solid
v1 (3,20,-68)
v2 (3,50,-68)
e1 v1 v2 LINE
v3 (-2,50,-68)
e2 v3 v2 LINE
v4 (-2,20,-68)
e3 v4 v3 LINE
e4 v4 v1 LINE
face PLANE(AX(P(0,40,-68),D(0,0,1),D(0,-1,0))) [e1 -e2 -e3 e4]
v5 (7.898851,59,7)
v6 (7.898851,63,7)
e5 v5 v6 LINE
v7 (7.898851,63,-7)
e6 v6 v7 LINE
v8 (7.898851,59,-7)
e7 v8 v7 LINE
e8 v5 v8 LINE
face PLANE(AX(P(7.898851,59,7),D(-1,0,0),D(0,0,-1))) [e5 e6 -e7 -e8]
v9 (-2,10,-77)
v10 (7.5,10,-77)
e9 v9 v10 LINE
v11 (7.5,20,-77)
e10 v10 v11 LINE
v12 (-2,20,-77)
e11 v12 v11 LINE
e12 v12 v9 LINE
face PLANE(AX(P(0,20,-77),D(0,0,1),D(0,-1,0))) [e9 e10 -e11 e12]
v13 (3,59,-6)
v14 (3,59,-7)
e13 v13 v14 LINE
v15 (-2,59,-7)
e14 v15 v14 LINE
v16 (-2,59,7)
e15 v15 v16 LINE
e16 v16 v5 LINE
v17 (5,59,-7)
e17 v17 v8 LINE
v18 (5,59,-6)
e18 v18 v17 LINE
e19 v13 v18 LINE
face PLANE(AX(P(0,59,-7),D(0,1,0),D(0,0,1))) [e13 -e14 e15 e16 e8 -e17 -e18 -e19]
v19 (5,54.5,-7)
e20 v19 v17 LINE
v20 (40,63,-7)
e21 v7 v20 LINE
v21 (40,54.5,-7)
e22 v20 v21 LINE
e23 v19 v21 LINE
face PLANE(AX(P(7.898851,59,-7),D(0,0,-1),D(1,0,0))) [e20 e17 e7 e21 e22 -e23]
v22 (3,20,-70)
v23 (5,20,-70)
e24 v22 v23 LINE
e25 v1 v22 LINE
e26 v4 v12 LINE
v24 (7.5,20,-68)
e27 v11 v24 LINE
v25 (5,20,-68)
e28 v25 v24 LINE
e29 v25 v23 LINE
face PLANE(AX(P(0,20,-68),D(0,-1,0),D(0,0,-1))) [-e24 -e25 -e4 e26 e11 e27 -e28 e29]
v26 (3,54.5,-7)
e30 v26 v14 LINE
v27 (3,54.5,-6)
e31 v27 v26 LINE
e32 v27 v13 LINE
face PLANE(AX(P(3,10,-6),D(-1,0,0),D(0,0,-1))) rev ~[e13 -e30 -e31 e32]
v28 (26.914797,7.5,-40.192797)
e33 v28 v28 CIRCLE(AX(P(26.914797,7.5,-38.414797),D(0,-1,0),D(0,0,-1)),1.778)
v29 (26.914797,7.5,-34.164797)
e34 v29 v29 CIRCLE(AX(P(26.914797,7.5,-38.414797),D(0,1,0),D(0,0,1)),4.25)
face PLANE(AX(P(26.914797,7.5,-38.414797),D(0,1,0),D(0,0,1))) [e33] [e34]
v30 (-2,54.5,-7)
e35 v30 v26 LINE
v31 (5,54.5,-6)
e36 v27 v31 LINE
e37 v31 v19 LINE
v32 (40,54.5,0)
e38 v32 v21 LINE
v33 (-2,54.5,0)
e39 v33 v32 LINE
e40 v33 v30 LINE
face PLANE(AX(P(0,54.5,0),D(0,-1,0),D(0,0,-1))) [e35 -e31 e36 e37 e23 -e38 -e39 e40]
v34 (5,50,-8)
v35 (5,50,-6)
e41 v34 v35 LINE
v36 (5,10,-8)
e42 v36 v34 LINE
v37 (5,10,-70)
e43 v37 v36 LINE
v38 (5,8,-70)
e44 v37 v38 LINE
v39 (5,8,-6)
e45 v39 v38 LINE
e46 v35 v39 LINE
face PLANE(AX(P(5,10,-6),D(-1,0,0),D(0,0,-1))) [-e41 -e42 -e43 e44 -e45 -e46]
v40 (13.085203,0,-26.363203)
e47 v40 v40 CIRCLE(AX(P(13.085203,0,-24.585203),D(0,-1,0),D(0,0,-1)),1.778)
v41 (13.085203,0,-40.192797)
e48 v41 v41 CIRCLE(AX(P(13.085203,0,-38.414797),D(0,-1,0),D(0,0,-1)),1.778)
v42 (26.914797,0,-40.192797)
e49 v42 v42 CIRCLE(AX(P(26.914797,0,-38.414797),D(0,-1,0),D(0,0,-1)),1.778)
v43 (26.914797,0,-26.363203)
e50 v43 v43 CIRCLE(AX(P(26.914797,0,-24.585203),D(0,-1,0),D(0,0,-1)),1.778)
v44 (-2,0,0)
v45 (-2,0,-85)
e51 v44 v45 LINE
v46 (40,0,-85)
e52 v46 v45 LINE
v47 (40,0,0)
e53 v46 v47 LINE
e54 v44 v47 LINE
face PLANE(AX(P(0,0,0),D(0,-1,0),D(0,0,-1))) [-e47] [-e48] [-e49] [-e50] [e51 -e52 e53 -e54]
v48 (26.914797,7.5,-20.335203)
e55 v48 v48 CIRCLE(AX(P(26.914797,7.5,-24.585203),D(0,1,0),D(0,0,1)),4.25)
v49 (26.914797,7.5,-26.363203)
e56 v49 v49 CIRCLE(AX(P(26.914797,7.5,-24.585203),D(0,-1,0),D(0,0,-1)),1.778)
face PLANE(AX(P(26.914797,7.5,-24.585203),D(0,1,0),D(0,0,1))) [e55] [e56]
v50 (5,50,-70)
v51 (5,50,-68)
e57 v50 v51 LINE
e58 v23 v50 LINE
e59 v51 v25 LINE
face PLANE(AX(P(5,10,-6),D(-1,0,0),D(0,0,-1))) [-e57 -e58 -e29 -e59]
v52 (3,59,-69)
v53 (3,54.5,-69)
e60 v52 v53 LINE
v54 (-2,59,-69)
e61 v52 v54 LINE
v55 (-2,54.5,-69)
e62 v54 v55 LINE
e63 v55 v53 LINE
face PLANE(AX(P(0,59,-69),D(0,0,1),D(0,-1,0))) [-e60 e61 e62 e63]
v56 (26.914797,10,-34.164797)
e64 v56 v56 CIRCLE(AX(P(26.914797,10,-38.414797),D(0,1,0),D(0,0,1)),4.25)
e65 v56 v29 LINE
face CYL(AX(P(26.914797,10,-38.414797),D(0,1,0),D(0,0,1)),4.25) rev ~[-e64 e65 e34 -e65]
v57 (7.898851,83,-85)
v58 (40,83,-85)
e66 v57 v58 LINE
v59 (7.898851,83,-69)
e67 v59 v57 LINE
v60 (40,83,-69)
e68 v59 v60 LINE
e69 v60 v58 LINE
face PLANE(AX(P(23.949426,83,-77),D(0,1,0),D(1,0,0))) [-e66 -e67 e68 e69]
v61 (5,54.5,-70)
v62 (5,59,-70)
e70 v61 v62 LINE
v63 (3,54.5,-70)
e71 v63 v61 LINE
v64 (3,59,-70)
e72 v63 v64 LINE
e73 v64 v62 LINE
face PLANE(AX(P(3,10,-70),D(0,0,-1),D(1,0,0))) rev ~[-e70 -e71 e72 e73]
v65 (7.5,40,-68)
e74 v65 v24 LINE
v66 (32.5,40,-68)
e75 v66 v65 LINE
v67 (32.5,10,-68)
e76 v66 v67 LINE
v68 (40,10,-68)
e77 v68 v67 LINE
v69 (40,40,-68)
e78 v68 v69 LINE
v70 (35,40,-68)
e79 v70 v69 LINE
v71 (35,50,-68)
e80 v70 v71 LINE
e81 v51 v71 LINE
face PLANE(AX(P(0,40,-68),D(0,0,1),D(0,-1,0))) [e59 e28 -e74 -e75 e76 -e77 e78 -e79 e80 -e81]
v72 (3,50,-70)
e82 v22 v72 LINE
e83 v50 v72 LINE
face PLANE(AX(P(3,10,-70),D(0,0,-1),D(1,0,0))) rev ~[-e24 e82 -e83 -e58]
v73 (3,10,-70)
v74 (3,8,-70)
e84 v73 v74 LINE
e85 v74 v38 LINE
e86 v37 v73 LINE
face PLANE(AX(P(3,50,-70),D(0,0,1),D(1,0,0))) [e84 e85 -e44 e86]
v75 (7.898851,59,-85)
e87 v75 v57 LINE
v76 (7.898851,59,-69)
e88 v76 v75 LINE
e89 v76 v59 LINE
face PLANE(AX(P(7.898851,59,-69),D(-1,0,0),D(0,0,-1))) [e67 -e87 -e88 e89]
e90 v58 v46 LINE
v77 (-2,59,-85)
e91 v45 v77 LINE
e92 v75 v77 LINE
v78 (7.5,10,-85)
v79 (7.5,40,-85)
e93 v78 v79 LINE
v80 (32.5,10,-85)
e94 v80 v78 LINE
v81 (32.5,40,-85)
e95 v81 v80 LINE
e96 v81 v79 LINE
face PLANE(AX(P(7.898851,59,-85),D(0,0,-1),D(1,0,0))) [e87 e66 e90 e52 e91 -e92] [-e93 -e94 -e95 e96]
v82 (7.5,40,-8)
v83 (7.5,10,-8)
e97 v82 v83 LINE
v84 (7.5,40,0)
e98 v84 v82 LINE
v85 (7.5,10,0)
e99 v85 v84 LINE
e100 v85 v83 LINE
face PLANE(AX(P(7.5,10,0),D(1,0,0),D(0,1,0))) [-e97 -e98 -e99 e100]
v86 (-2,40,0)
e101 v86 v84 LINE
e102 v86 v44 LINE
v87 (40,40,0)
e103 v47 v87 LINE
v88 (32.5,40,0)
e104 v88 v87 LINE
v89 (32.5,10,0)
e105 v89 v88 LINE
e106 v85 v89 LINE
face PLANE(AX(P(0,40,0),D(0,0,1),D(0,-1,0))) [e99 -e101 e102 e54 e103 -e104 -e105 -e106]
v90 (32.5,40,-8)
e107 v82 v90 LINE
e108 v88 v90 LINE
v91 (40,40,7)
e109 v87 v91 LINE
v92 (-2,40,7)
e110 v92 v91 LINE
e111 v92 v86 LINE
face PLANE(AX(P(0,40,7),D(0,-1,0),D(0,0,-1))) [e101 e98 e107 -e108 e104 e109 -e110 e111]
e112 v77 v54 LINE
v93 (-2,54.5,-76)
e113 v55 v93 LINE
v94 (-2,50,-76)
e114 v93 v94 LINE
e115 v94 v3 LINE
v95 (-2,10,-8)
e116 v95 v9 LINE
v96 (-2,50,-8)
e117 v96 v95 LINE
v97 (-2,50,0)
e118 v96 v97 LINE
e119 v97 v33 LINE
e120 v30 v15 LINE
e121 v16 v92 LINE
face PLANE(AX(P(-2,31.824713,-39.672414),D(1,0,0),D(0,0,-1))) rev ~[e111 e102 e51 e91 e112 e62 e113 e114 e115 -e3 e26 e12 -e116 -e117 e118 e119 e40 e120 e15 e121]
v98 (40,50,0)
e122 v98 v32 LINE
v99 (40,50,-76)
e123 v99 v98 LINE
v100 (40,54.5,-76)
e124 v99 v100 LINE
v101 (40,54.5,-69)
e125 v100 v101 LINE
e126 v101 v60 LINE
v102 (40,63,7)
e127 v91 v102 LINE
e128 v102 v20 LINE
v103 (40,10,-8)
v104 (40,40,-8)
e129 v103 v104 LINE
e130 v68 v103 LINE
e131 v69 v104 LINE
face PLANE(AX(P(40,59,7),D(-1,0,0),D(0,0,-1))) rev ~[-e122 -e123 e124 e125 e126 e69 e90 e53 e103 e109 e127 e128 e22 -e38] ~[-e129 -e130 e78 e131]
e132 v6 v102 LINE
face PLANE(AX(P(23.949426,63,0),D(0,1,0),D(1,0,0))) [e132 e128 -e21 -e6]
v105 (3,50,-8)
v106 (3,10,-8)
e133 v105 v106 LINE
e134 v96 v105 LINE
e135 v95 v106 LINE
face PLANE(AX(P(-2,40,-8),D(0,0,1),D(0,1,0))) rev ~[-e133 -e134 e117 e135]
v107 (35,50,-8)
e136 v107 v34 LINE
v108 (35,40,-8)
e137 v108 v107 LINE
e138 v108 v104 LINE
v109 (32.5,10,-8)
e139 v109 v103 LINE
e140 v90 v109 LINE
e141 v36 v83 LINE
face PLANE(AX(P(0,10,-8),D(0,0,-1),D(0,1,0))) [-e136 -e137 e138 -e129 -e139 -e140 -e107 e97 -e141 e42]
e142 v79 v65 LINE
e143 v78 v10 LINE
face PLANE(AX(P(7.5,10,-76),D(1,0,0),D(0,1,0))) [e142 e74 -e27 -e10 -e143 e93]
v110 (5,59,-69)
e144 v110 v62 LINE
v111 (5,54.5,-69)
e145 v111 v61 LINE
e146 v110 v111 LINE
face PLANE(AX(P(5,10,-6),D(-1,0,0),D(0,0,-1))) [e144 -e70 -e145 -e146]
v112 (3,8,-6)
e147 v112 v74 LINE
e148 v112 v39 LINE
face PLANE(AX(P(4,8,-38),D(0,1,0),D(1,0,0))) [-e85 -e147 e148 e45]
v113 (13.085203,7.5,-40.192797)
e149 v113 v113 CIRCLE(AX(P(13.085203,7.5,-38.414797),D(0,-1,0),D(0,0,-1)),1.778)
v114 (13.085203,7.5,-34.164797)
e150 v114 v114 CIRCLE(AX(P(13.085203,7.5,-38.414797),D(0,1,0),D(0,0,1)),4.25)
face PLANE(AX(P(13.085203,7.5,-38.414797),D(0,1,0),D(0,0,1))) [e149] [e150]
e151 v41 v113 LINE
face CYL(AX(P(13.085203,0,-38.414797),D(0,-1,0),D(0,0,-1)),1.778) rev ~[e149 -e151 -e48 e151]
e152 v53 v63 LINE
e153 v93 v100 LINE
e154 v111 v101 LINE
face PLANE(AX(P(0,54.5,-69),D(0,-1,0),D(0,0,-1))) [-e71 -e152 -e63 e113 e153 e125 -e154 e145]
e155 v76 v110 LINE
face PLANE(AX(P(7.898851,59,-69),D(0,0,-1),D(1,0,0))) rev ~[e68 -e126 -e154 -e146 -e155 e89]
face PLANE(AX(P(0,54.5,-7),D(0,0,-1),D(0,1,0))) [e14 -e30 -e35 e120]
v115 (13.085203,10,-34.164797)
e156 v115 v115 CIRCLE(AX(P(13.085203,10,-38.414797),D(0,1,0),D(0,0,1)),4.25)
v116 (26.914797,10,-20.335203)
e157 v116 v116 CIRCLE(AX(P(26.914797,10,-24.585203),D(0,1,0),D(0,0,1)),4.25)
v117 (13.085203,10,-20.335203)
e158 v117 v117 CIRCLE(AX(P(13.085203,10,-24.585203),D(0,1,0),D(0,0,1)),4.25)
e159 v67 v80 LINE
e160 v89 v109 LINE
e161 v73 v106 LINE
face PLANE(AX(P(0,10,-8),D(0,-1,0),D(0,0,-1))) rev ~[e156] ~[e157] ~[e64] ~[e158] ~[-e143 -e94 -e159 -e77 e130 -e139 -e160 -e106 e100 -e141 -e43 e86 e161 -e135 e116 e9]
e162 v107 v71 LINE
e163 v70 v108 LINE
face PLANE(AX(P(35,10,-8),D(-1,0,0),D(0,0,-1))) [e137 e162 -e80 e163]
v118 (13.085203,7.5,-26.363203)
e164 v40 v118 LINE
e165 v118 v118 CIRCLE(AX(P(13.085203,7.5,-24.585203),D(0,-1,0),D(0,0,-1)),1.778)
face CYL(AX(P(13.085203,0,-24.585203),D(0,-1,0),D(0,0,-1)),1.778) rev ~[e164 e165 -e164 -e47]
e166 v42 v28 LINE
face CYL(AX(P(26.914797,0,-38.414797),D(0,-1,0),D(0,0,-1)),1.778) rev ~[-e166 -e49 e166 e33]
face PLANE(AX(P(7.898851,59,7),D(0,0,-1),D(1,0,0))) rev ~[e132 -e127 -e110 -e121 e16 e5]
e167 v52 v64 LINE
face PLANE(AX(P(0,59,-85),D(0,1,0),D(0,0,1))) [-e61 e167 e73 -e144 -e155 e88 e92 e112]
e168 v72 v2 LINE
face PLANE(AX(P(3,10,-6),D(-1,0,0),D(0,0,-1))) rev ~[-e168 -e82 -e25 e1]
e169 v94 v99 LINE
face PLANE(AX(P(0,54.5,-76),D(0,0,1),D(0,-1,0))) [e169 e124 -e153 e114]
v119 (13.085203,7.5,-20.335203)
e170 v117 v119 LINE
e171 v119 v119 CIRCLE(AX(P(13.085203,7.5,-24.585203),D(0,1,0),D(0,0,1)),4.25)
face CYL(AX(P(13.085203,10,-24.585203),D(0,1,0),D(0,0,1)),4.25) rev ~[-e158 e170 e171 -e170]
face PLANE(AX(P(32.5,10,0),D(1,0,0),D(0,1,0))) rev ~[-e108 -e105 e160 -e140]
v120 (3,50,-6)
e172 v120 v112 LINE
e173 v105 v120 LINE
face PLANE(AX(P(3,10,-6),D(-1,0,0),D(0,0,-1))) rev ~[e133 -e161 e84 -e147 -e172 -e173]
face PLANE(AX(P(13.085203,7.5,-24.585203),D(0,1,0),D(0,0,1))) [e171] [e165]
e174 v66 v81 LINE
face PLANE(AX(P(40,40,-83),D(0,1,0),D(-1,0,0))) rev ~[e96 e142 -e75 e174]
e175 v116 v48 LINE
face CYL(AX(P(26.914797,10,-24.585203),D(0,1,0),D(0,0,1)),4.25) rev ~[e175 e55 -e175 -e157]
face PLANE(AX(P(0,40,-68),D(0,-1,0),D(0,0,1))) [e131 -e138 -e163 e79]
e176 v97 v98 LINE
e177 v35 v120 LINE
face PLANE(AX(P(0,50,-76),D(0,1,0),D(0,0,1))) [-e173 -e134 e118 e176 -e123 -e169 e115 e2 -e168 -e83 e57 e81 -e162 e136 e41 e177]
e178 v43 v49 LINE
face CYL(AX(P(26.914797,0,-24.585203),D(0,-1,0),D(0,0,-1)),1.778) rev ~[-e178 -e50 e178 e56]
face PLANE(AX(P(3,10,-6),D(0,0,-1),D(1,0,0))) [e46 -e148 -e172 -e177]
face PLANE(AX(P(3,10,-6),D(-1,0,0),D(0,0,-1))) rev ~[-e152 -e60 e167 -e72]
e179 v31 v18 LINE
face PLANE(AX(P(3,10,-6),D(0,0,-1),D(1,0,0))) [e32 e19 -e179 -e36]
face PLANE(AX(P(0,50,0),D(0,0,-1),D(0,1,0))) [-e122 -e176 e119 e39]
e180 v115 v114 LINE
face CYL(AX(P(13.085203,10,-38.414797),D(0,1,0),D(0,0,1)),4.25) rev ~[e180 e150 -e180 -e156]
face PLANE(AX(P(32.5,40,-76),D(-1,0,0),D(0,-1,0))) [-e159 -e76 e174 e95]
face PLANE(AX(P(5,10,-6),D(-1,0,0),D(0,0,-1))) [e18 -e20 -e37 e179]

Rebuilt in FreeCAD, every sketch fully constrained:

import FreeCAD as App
import Part
import Sketcher
from FreeCAD import Vector

doc = App.newDocument("Part")
body = doc.addObject("PartDesign::Body", "Body")

# Sketch on XZ plane
sketch1 = body.newObject("Sketcher::SketchObject", "Sketch")
sketch1.AttachmentSupport = (doc.getObject("XZ_Plane"), [""])
sketch1.MapMode = "FlatFace"
sketch1.addGeometry([
    Part.LineSegment(Vector(0, -76, 0), Vector(0, 0, 0)),
    Part.LineSegment(Vector(0, 0, 0), Vector(40, 0, 0)),
    Part.LineSegment(Vector(40, 0, 0), Vector(40, -76, 0)),
    Part.LineSegment(Vector(40, -76, 0), Vector(0, -76, 0)),
], False)
sketch1.addConstraint([
    Sketcher.Constraint("Coincident", 0, 2, 1, 1),
    Sketcher.Constraint("Coincident", 1, 2, 2, 1),
    Sketcher.Constraint("Coincident", 2, 2, 3, 1),
    Sketcher.Constraint("Coincident", 3, 2, 0, 1),
    Sketcher.Constraint("Vertical", 0),
    Sketcher.Constraint("Horizontal", 1),
    Sketcher.Constraint("Vertical", 2),
    Sketcher.Constraint("Horizontal", 3),
    Sketcher.Constraint("Coincident", 0, 2, -1, 1),
    Sketcher.Constraint("DistanceX", 1, 1, 1, 2, 40.0),
    Sketcher.Constraint("DistanceY", 0, 1, 0, 2, 76.0),
])
pad1 = body.newObject("PartDesign::Pad", "Pad")
pad1.Profile = sketch1
pad1.Length = 10
pad1.Reversed = True

# Sketch on XZ plane
sketch2 = body.newObject("Sketcher::SketchObject", "Sketch001")
sketch2.AttachmentSupport = (doc.getObject("XZ_Plane"), [""])
sketch2.MapMode = "FlatFace"
sketch2.AttachmentOffset = App.Placement(Vector(0, 0, -10), App.Rotation())
sketch2.addGeometry([
    Part.LineSegment(Vector(0, -76, 0), Vector(0, 0, 0)),  # 0
    Part.LineSegment(Vector(0, 0, 0), Vector(40, 0, 0)),  # 1
    Part.LineSegment(Vector(40, 0, 0), Vector(40, -76, 0)),  # 2
    Part.LineSegment(Vector(40, -76, 0), Vector(0, -76, 0)),  # 3
    Part.LineSegment(Vector(35, -8, 0), Vector(5, -8, 0)),  # 4
    Part.LineSegment(Vector(5, -8, 0), Vector(5, -68, 0)),  # 5
    Part.LineSegment(Vector(5, -68, 0), Vector(35, -68, 0)),  # 6
    Part.LineSegment(Vector(35, -68, 0), Vector(35, -8, 0)),  # 7
], False)
sketch2.addConstraint([
    Sketcher.Constraint("Coincident", 0, 2, 1, 1),
    Sketcher.Constraint("Coincident", 1, 2, 2, 1),
    Sketcher.Constraint("Coincident", 2, 2, 3, 1),
    Sketcher.Constraint("Coincident", 3, 2, 0, 1),
    Sketcher.Constraint("Coincident", 4, 2, 5, 1),
    Sketcher.Constraint("Coincident", 5, 2, 6, 1),
    Sketcher.Constraint("Coincident", 6, 2, 7, 1),
    Sketcher.Constraint("Coincident", 7, 2, 4, 1),
    Sketcher.Constraint("Vertical", 0),
    Sketcher.Constraint("Horizontal", 1),
    Sketcher.Constraint("Vertical", 2),
    Sketcher.Constraint("Horizontal", 3),
    Sketcher.Constraint("Horizontal", 4),
    Sketcher.Constraint("Vertical", 5),
    Sketcher.Constraint("Horizontal", 6),
    Sketcher.Constraint("Vertical", 7),
    Sketcher.Constraint("Coincident", 0, 2, -1, 1),
    Sketcher.Constraint("DistanceX", 1, 1, 1, 2, 40.0),
    Sketcher.Constraint("DistanceX", 4, 2, 4, 1, 30.0),
    Sketcher.Constraint("DistanceY", 0, 1, 0, 2, 76.0),
    Sketcher.Constraint("DistanceY", 5, 2, 5, 1, 60.0),
    Sketcher.Constraint("DistanceX", -1, 1, 4, 2, 5.0),
    Sketcher.Constraint("DistanceY", 4, 2, -1, 1, 8.0),
])
pad2 = body.newObject("PartDesign::Pad", "Pad001")
pad2.Profile = sketch2
pad2.Length = 40
pad2.Reversed = True

# Sketch on XY plane
sketch3 = body.newObject("Sketcher::SketchObject", "Sketch002")
sketch3.AttachmentSupport = (doc.getObject("XY_Plane"), [""])
sketch3.MapMode = "FlatFace"
sketch3.addGeometry([
    Part.LineSegment(Vector(8, 40, 0), Vector(8, 10, 0)),
    Part.LineSegment(Vector(8, 10, 0), Vector(32, 10, 0)),
    Part.LineSegment(Vector(32, 10, 0), Vector(32, 40, 0)),
    Part.LineSegment(Vector(32, 40, 0), Vector(8, 40, 0)),
], False)
sketch3.addConstraint([
    Sketcher.Constraint("Coincident", 0, 2, 1, 1),
    Sketcher.Constraint("Coincident", 1, 2, 2, 1),
    Sketcher.Constraint("Coincident", 2, 2, 3, 1),
    Sketcher.Constraint("Coincident", 3, 2, 0, 1),
    Sketcher.Constraint("Vertical", 0),
    Sketcher.Constraint("Horizontal", 1),
    Sketcher.Constraint("Vertical", 2),
    Sketcher.Constraint("Horizontal", 3),
    Sketcher.Constraint("DistanceX", 1, 1, 1, 2, 25.0),
    Sketcher.Constraint("DistanceY", 0, 2, 0, 1, 30.0),
    Sketcher.Constraint("DistanceY", -1, 1, 0, 2, 10.0),
    Sketcher.Constraint("DistanceX", -1, 1, 0, 2, 7.5),
])
pocket1 = body.newObject("PartDesign::Pocket", "Pocket")
pocket1.Profile = sketch3
pocket1.Type = "ThroughAll"

# Sketch on YZ plane
sketch4 = body.newObject("Sketcher::SketchObject", "Sketch003")
sketch4.AttachmentSupport = (doc.getObject("YZ_Plane"), [""])
sketch4.MapMode = "FlatFace"
sketch4.addGeometry([
    Part.LineSegment(Vector(40, -68, 0), Vector(10, -68, 0)),
    Part.LineSegment(Vector(10, -68, 0), Vector(10, -8, 0)),
    Part.LineSegment(Vector(10, -8, 0), Vector(40, -8, 0)),
    Part.LineSegment(Vector(40, -8, 0), Vector(40, -68, 0)),
], False)
sketch4.addConstraint([
    Sketcher.Constraint("Coincident", 0, 2, 1, 1),
    Sketcher.Constraint("Coincident", 1, 2, 2, 1),
    Sketcher.Constraint("Coincident", 2, 2, 3, 1),
    Sketcher.Constraint("Coincident", 3, 2, 0, 1),
    Sketcher.Constraint("Horizontal", 0),
    Sketcher.Constraint("Vertical", 1),
    Sketcher.Constraint("Horizontal", 2),
    Sketcher.Constraint("Vertical", 3),
    Sketcher.Constraint("DistanceX", 0, 2, 0, 1, 30.0),
    Sketcher.Constraint("DistanceY", 1, 1, 1, 2, 60.0),
    Sketcher.Constraint("DistanceX", -1, 1, 0, 2, 10.0),
    Sketcher.Constraint("DistanceY", 0, 2, -1, 1, 68.0),
])
pocket2 = body.newObject("PartDesign::Pocket", "Pocket001")
pocket2.Profile = sketch4
pocket2.Type = "ThroughAll"
pocket2.Reversed = True

# Sketch on XZ plane
sketch5 = body.newObject("Sketcher::SketchObject", "Sketch004")
sketch5.AttachmentSupport = (doc.getObject("XZ_Plane"), [""])
sketch5.MapMode = "FlatFace"
sketch5.addGeometry([
    Part.Circle(Vector(26.9, -38.4, 0), Vector(0, 0, 1), 1.8),  # 0
    Part.Circle(Vector(13.1, -24.6, 0), Vector(0, 0, 1), 1.8),  # 1
    Part.Circle(Vector(26.9, -24.6, 0), Vector(0, 0, 1), 1.8),  # 2
    Part.Circle(Vector(29.8, -31.5, 0), Vector(0, 0, 1), 1.8),  # 3
    Part.Circle(Vector(13.1, -38.4, 0), Vector(0, 0, 1), 1.8),  # 4
], False)
sketch5.addConstraint([
    Sketcher.Constraint("Equal", 0, 1),
    Sketcher.Constraint("Equal", 1, 2),
    Sketcher.Constraint("Equal", 2, 3),
    Sketcher.Constraint("Equal", 3, 4),
    Sketcher.Constraint("Horizontal", 1, 3, 2, 3),
    Sketcher.Constraint("Horizontal", 0, 3, 4, 3),
    Sketcher.Constraint("Vertical", 0, 3, 2, 3),
    Sketcher.Constraint("Vertical", 1, 3, 4, 3),
    Sketcher.Constraint("Diameter", 0, 3.556),
    Sketcher.Constraint("DistanceY", 3, 3, -1, 1, 31.5),
    Sketcher.Constraint("DistanceX", -1, 1, 3, 3, 29.779),
    Sketcher.Constraint("DistanceX", -1, 1, 0, 3, 26.914797),
    Sketcher.Constraint("DistanceY", 0, 3, -1, 1, 38.414797),
    Sketcher.Constraint("DistanceX", -1, 1, 1, 3, 13.085203),
    Sketcher.Constraint("DistanceY", 1, 3, -1, 1, 24.585203),
])
pocket3 = body.newObject("PartDesign::Pocket", "Pocket002")
pocket3.Profile = sketch5
pocket3.Length = 40

# Sketch on XZ plane
sketch6 = body.newObject("Sketcher::SketchObject", "Sketch005")
sketch6.AttachmentSupport = (doc.getObject("XZ_Plane"), [""])
sketch6.MapMode = "FlatFace"
sketch6.addGeometry(Part.Circle(Vector(29.8, -31.5, 0), Vector(0, 0, 1), 1.8), False)
sketch6.addConstraint([
    Sketcher.Constraint("Diameter", 0, 3.556),
    Sketcher.Constraint("DistanceY", 0, 3, -1, 1, 31.5),
    Sketcher.Constraint("DistanceX", -1, 1, 0, 3, 29.779),
])
pad3 = body.newObject("PartDesign::Pad", "Pad002")
pad3.Profile = sketch6
pad3.Length = 10
pad3.Reversed = True

# Sketch on XY plane
sketch7 = body.newObject("Sketcher::SketchObject", "Sketch006")
sketch7.AttachmentSupport = (doc.getObject("XY_Plane"), [""])
sketch7.MapMode = "FlatFace"
sketch7.addGeometry([
    Part.LineSegment(Vector(0, 50, 0), Vector(0, 40, 0)),
    Part.LineSegment(Vector(0, 40, 0), Vector(40, 40, 0)),
    Part.LineSegment(Vector(40, 40, 0), Vector(40, 50, 0)),
    Part.LineSegment(Vector(40, 50, 0), Vector(0, 50, 0)),
], False)
sketch7.addConstraint([
    Sketcher.Constraint("Coincident", 0, 2, 1, 1),
    Sketcher.Constraint("Coincident", 1, 2, 2, 1),
    Sketcher.Constraint("Coincident", 2, 2, 3, 1),
    Sketcher.Constraint("Coincident", 3, 2, 0, 1),
    Sketcher.Constraint("Vertical", 0),
    Sketcher.Constraint("Horizontal", 1),
    Sketcher.Constraint("Vertical", 2),
    Sketcher.Constraint("Horizontal", 3),
    Sketcher.Constraint("PointOnObject", 0, 2, -2),
    Sketcher.Constraint("DistanceX", 1, 1, 1, 2, 40.0),
    Sketcher.Constraint("DistanceY", 0, 2, 0, 1, 10.0),
    Sketcher.Constraint("DistanceY", -1, 1, 0, 2, 40.0),
])
pad4 = body.newObject("PartDesign::Pad", "Pad003")
pad4.Profile = sketch7
pad4.Length = 7

# Sketch on XY plane
sketch8 = body.newObject("Sketcher::SketchObject", "Sketch007")
sketch8.AttachmentSupport = (doc.getObject("XY_Plane"), [""])
sketch8.MapMode = "FlatFace"
sketch8.AttachmentOffset = App.Placement(Vector(0, 0, -76), App.Rotation())
sketch8.addGeometry([
    Part.LineSegment(Vector(40, 50, 0), Vector(40, 40, 0)),
    Part.LineSegment(Vector(40, 40, 0), Vector(0, 40, 0)),
    Part.LineSegment(Vector(0, 40, 0), Vector(0, 50, 0)),
    Part.LineSegment(Vector(0, 50, 0), Vector(40, 50, 0)),
], False)
sketch8.addConstraint([
    Sketcher.Constraint("Coincident", 0, 2, 1, 1),
    Sketcher.Constraint("Coincident", 1, 2, 2, 1),
    Sketcher.Constraint("Coincident", 2, 2, 3, 1),
    Sketcher.Constraint("Coincident", 3, 2, 0, 1),
    Sketcher.Constraint("Vertical", 0),
    Sketcher.Constraint("Horizontal", 1),
    Sketcher.Constraint("Vertical", 2),
    Sketcher.Constraint("Horizontal", 3),
    Sketcher.Constraint("PointOnObject", 1, 2, -2),
    Sketcher.Constraint("DistanceX", 1, 2, 1, 1, 40.0),
    Sketcher.Constraint("DistanceY", 0, 2, 0, 1, 10.0),
    Sketcher.Constraint("DistanceY", -1, 1, 0, 2, 40.0),
])
pad5 = body.newObject("PartDesign::Pad", "Pad004")
pad5.Profile = sketch8
pad5.Length = 7
pad5.Reversed = True

# Sketch on XZ plane
sketch9 = body.newObject("Sketcher::SketchObject", "Sketch008")
sketch9.AttachmentSupport = (doc.getObject("XZ_Plane"), [""])
sketch9.MapMode = "FlatFace"
sketch9.AttachmentOffset = App.Placement(Vector(0, 0, -50), App.Rotation())
sketch9.addGeometry([
    Part.LineSegment(Vector(0, -83, 0), Vector(0, -76, 0)),  # 0
    Part.LineSegment(Vector(0, -76, 0), Vector(40, -76, 0)),  # 1
    Part.LineSegment(Vector(40, -76, 0), Vector(40, -83, 0)),  # 2
    Part.LineSegment(Vector(40, -83, 0), Vector(0, -83, 0)),  # 3
    Part.LineSegment(Vector(0, 0, 0), Vector(0, 7, 0)),  # 4
    Part.LineSegment(Vector(0, 7, 0), Vector(40, 7, 0)),  # 5
    Part.LineSegment(Vector(40, 7, 0), Vector(40, 0, 0)),  # 6
    Part.LineSegment(Vector(40, 0, 0), Vector(0, 0, 0)),  # 7
], False)
sketch9.addConstraint([
    Sketcher.Constraint("Coincident", 0, 2, 1, 1),
    Sketcher.Constraint("Coincident", 1, 2, 2, 1),
    Sketcher.Constraint("Coincident", 2, 2, 3, 1),
    Sketcher.Constraint("Coincident", 3, 2, 0, 1),
    Sketcher.Constraint("Coincident", 4, 2, 5, 1),
    Sketcher.Constraint("Coincident", 5, 2, 6, 1),
    Sketcher.Constraint("Coincident", 6, 2, 7, 1),
    Sketcher.Constraint("Coincident", 7, 2, 4, 1),
    Sketcher.Constraint("Vertical", 0),
    Sketcher.Constraint("Horizontal", 1),
    Sketcher.Constraint("Vertical", 2),
    Sketcher.Constraint("Horizontal", 3),
    Sketcher.Constraint("Vertical", 4),
    Sketcher.Constraint("Horizontal", 5),
    Sketcher.Constraint("Vertical", 6),
    Sketcher.Constraint("Horizontal", 7),
    Sketcher.Constraint("Coincident", 7, 2, -1, 1),
    Sketcher.Constraint("PointOnObject", 0, 2, -2),
    Sketcher.Constraint("Vertical", 2, 2, 5, 2),
    Sketcher.Constraint("Equal", 2, 4),
    Sketcher.Constraint("DistanceX", 1, 1, 1, 2, 40.0),
    Sketcher.Constraint("DistanceY", 0, 1, 0, 2, 7.0),
    Sketcher.Constraint("DistanceY", 0, 2, -1, 1, 76.0),
])
pad6 = body.newObject("PartDesign::Pad", "Pad005")
pad6.Profile = sketch9
pad6.Length = 4.5
pad6.Reversed = True

# Sketch on XY plane
sketch10 = body.newObject("Sketcher::SketchObject", "Sketch009")
sketch10.AttachmentSupport = (doc.getObject("XY_Plane"), [""])
sketch10.MapMode = "FlatFace"
sketch10.AttachmentOffset = App.Placement(Vector(0, 0, -83), App.Rotation())
sketch10.addGeometry([
    Part.LineSegment(Vector(40, 59, 0), Vector(40, 54.5, 0)),
    Part.LineSegment(Vector(40, 54.5, 0), Vector(0, 54.5, 0)),
    Part.LineSegment(Vector(0, 54.5, 0), Vector(0, 59, 0)),
    Part.LineSegment(Vector(0, 59, 0), Vector(40, 59, 0)),
], False)
sketch10.addConstraint([
    Sketcher.Constraint("Coincident", 0, 2, 1, 1),
    Sketcher.Constraint("Coincident", 1, 2, 2, 1),
    Sketcher.Constraint("Coincident", 2, 2, 3, 1),
    Sketcher.Constraint("Coincident", 3, 2, 0, 1),
    Sketcher.Constraint("Vertical", 0),
    Sketcher.Constraint("Horizontal", 1),
    Sketcher.Constraint("Vertical", 2),
    Sketcher.Constraint("Horizontal", 3),
    Sketcher.Constraint("PointOnObject", 1, 2, -2),
    Sketcher.Constraint("DistanceX", 1, 2, 1, 1, 40.0),
    Sketcher.Constraint("DistanceY", 0, 2, 0, 1, 4.5),
    Sketcher.Constraint("DistanceY", -1, 1, 2, 2, 59.0),
])
pad7 = body.newObject("PartDesign::Pad", "Pad006")
pad7.Profile = sketch10
pad7.Length = 14

# Sketch on XY plane
sketch11 = body.newObject("Sketcher::SketchObject", "Sketch010")
sketch11.AttachmentSupport = (doc.getObject("XY_Plane"), [""])
sketch11.MapMode = "FlatFace"
sketch11.AttachmentOffset = App.Placement(Vector(0, 0, 7), App.Rotation())
sketch11.addGeometry([
    Part.LineSegment(Vector(0, 59, 0), Vector(0, 54.5, 0)),
    Part.LineSegment(Vector(0, 54.5, 0), Vector(40, 54.5, 0)),
    Part.LineSegment(Vector(40, 54.5, 0), Vector(40, 59, 0)),
    Part.LineSegment(Vector(40, 59, 0), Vector(0, 59, 0)),
], False)
sketch11.addConstraint([
    Sketcher.Constraint("Coincident", 0, 2, 1, 1),
    Sketcher.Constraint("Coincident", 1, 2, 2, 1),
    Sketcher.Constraint("Coincident", 2, 2, 3, 1),
    Sketcher.Constraint("Coincident", 3, 2, 0, 1),
    Sketcher.Constraint("Vertical", 0),
    Sketcher.Constraint("Horizontal", 1),
    Sketcher.Constraint("Vertical", 2),
    Sketcher.Constraint("Horizontal", 3),
    Sketcher.Constraint("PointOnObject", 0, 2, -2),
    Sketcher.Constraint("DistanceX", 1, 1, 1, 2, 40.0),
    Sketcher.Constraint("DistanceY", 0, 2, 0, 1, 4.5),
    Sketcher.Constraint("DistanceY", -1, 1, 2, 2, 59.0),
])
pad8 = body.newObject("PartDesign::Pad", "Pad007")
pad8.Profile = sketch11
pad8.Length = 14
pad8.Reversed = True

# Sketch on XY plane
sketch12 = body.newObject("Sketcher::SketchObject", "Sketch011")
sketch12.AttachmentSupport = (doc.getObject("XY_Plane"), [""])
sketch12.MapMode = "FlatFace"
sketch12.AttachmentOffset = App.Placement(Vector(0, 0, -83), App.Rotation())
sketch12.addGeometry([
    Part.LineSegment(Vector(40, 59, 0), Vector(40, 40, 0)),
    Part.LineSegment(Vector(40, 40, 0), Vector(0, 40, 0)),
    Part.LineSegment(Vector(0, 40, 0), Vector(0, 59, 0)),
    Part.LineSegment(Vector(0, 59, 0), Vector(40, 59, 0)),
], False)
sketch12.addConstraint([
    Sketcher.Constraint("Coincident", 0, 2, 1, 1),
    Sketcher.Constraint("Coincident", 1, 2, 2, 1),
    Sketcher.Constraint("Coincident", 2, 2, 3, 1),
    Sketcher.Constraint("Coincident", 3, 2, 0, 1),
    Sketcher.Constraint("Vertical", 0),
    Sketcher.Constraint("Horizontal", 1),
    Sketcher.Constraint("Vertical", 2),
    Sketcher.Constraint("Horizontal", 3),
    Sketcher.Constraint("PointOnObject", 1, 2, -2),
    Sketcher.Constraint("DistanceX", 1, 2, 1, 1, 40.0),
    Sketcher.Constraint("DistanceY", 0, 2, 0, 1, 19.0),
    Sketcher.Constraint("DistanceY", -1, 1, 0, 2, 40.0),
])
pad9 = body.newObject("PartDesign::Pad", "Pad008")
pad9.Profile = sketch12
pad9.Length = 2
pad9.Reversed = True

# Sketch on XY plane
sketch13 = body.newObject("Sketcher::SketchObject", "Sketch012")
sketch13.AttachmentSupport = (doc.getObject("XY_Plane"), [""])
sketch13.MapMode = "FlatFace"
sketch13.AttachmentOffset = App.Placement(Vector(0, 0, -76), App.Rotation())
sketch13.addGeometry([
    Part.LineSegment(Vector(0, 0, 0), Vector(0, 40, 0)),  # 0
    Part.LineSegment(Vector(0, 40, 0), Vector(8, 40, 0)),  # 1
    Part.LineSegment(Vector(8, 40, 0), Vector(8, 10, 0)),  # 2
    Part.LineSegment(Vector(8, 10, 0), Vector(32, 10, 0)),  # 3
    Part.LineSegment(Vector(32, 10, 0), Vector(32, 40, 0)),  # 4
    Part.LineSegment(Vector(32, 40, 0), Vector(40, 40, 0)),  # 5
    Part.LineSegment(Vector(40, 40, 0), Vector(40, 0, 0)),  # 6
    Part.LineSegment(Vector(40, 0, 0), Vector(0, 0, 0)),  # 7
], False)
sketch13.addConstraint([
    Sketcher.Constraint("Coincident", 0, 2, 1, 1),
    Sketcher.Constraint("Coincident", 1, 2, 2, 1),
    Sketcher.Constraint("Coincident", 2, 2, 3, 1),
    Sketcher.Constraint("Coincident", 3, 2, 4, 1),
    Sketcher.Constraint("Coincident", 4, 2, 5, 1),
    Sketcher.Constraint("Coincident", 5, 2, 6, 1),
    Sketcher.Constraint("Coincident", 6, 2, 7, 1),
    Sketcher.Constraint("Coincident", 7, 2, 0, 1),
    Sketcher.Constraint("Vertical", 0),
    Sketcher.Constraint("Horizontal", 1),
    Sketcher.Constraint("Vertical", 2),
    Sketcher.Constraint("Horizontal", 3),
    Sketcher.Constraint("Vertical", 4),
    Sketcher.Constraint("Horizontal", 5),
    Sketcher.Constraint("Vertical", 6),
    Sketcher.Constraint("Horizontal", 7),
    Sketcher.Constraint("Coincident", 7, 2, -1, 1),
    Sketcher.Constraint("Horizontal", 1, 2, 4, 2),
    Sketcher.Constraint("Equal", 1, 5),
    Sketcher.Constraint("Equal", 7, 0),
    Sketcher.Constraint("DistanceX", 3, 1, 3, 2, 25.0),
    Sketcher.Constraint("DistanceX", 7, 2, 7, 1, 40.0),
    Sketcher.Constraint("DistanceY", 2, 2, 2, 1, 30.0),
])
pad10 = body.newObject("PartDesign::Pad", "Pad009")
pad10.Profile = sketch13
pad10.Length = 9
pad10.Reversed = True

# Sketch on YZ plane
sketch14 = body.newObject("Sketcher::SketchObject", "Sketch013")
sketch14.AttachmentSupport = (doc.getObject("YZ_Plane"), [""])
sketch14.MapMode = "FlatFace"
sketch14.AttachmentOffset = App.Placement(Vector(0, 0, 7.5), App.Rotation())
sketch14.addGeometry([
    Part.LineSegment(Vector(20, -77, 0), Vector(10, -77, 0)),
    Part.LineSegment(Vector(10, -77, 0), Vector(10, -68, 0)),
    Part.LineSegment(Vector(10, -68, 0), Vector(20, -68, 0)),
    Part.LineSegment(Vector(20, -68, 0), Vector(20, -77, 0)),
], False)
sketch14.addConstraint([
    Sketcher.Constraint("Coincident", 0, 2, 1, 1),
    Sketcher.Constraint("Coincident", 1, 2, 2, 1),
    Sketcher.Constraint("Coincident", 2, 2, 3, 1),
    Sketcher.Constraint("Coincident", 3, 2, 0, 1),
    Sketcher.Constraint("Horizontal", 0),
    Sketcher.Constraint("Vertical", 1),
    Sketcher.Constraint("Horizontal", 2),
    Sketcher.Constraint("Vertical", 3),
    Sketcher.Constraint("DistanceX", 0, 2, 0, 1, 10.0),
    Sketcher.Constraint("DistanceY", 1, 1, 1, 2, 9.0),
    Sketcher.Constraint("DistanceX", -1, 1, 0, 2, 10.0),
    Sketcher.Constraint("DistanceY", 0, 2, -1, 1, 77.0),
])
pocket4 = body.newObject("PartDesign::Pocket", "Pocket003")
pocket4.Profile = sketch14
pocket4.Length = 7.5

# Sketch on YZ plane
sketch15 = body.newObject("Sketcher::SketchObject", "Sketch014")
sketch15.AttachmentSupport = (doc.getObject("YZ_Plane"), [""])
sketch15.MapMode = "FlatFace"
sketch15.addGeometry([
    Part.LineSegment(Vector(54.5, -69, 0), Vector(59, -69, 0)),  # 0
    Part.LineSegment(Vector(59, -69, 0), Vector(59, -85, 0)),  # 1
    Part.LineSegment(Vector(59, -85, 0), Vector(0, -85, 0)),  # 2
    Part.LineSegment(Vector(0, -85, 0), Vector(0, 0, 0)),  # 3
    Part.LineSegment(Vector(0, 0, 0), Vector(40, 0, 0)),  # 4
    Part.LineSegment(Vector(40, 0, 0), Vector(40, 7, 0)),  # 5
    Part.LineSegment(Vector(40, 7, 0), Vector(59, 7, 0)),  # 6
    Part.LineSegment(Vector(59, 7, 0), Vector(59, -7, 0)),  # 7
    Part.LineSegment(Vector(59, -7, 0), Vector(54.5, -7, 0)),  # 8
    Part.LineSegment(Vector(54.5, -7, 0), Vector(54.5, 0, 0)),  # 9
    Part.LineSegment(Vector(54.5, 0, 0), Vector(50, 0, 0)),  # 10
    Part.LineSegment(Vector(50, 0, 0), Vector(50, -76, 0)),  # 11
    Part.LineSegment(Vector(50, -76, 0), Vector(54.5, -76, 0)),  # 12
    Part.LineSegment(Vector(54.5, -76, 0), Vector(54.5, -69, 0)),  # 13
    Part.LineSegment(Vector(40, -68, 0), Vector(40, -8, 0)),  # 14
    Part.LineSegment(Vector(40, -8, 0), Vector(10, -8, 0)),  # 15
    Part.LineSegment(Vector(10, -8, 0), Vector(10, -77, 0)),  # 16
    Part.LineSegment(Vector(10, -77, 0), Vector(20, -77, 0)),  # 17
    Part.LineSegment(Vector(20, -77, 0), Vector(20, -68, 0)),  # 18
    Part.LineSegment(Vector(20, -68, 0), Vector(40, -68, 0)),  # 19
], False)
sketch15.addConstraint([
    Sketcher.Constraint("Coincident", 0, 2, 1, 1),
    Sketcher.Constraint("Coincident", 1, 2, 2, 1),
    Sketcher.Constraint("Coincident", 2, 2, 3, 1),
    Sketcher.Constraint("Coincident", 3, 2, 4, 1),
    Sketcher.Constraint("Coincident", 4, 2, 5, 1),
    Sketcher.Constraint("Coincident", 5, 2, 6, 1),
    Sketcher.Constraint("Coincident", 6, 2, 7, 1),
    Sketcher.Constraint("Coincident", 7, 2, 8, 1),
    Sketcher.Constraint("Coincident", 8, 2, 9, 1),
    Sketcher.Constraint("Coincident", 9, 2, 10, 1),
    Sketcher.Constraint("Coincident", 10, 2, 11, 1),
    Sketcher.Constraint("Coincident", 11, 2, 12, 1),
    Sketcher.Constraint("Coincident", 12, 2, 13, 1),
    Sketcher.Constraint("Coincident", 13, 2, 0, 1),
    Sketcher.Constraint("Coincident", 14, 2, 15, 1),
    Sketcher.Constraint("Coincident", 15, 2, 16, 1),
    Sketcher.Constraint("Coincident", 16, 2, 17, 1),
    Sketcher.Constraint("Coincident", 17, 2, 18, 1),
    Sketcher.Constraint("Coincident", 18, 2, 19, 1),
    Sketcher.Constraint("Coincident", 19, 2, 14, 1),
    Sketcher.Constraint("Horizontal", 0),
    Sketcher.Constraint("Vertical", 1),
    Sketcher.Constraint("Horizontal", 2),
    Sketcher.Constraint("Vertical", 3),
    Sketcher.Constraint("Horizontal", 4),
    Sketcher.Constraint("Vertical", 5),
    Sketcher.Constraint("Horizontal", 6),
    Sketcher.Constraint("Vertical", 7),
    Sketcher.Constraint("Horizontal", 8),
    Sketcher.Constraint("Vertical", 9),
    Sketcher.Constraint("Horizontal", 10),
    Sketcher.Constraint("Vertical", 11),
    Sketcher.Constraint("Horizontal", 12),
    Sketcher.Constraint("Vertical", 13),
    Sketcher.Constraint("Vertical", 14),
    Sketcher.Constraint("Horizontal", 15),
    Sketcher.Constraint("Vertical", 16),
    Sketcher.Constraint("Horizontal", 17),
    Sketcher.Constraint("Vertical", 18),
    Sketcher.Constraint("Horizontal", 19),
    Sketcher.Constraint("Coincident", 3, 2, -1, 1),
    Sketcher.Constraint("PointOnObject", 9, 2, -1),
    Sketcher.Constraint("Vertical", 1, 2, 6, 2),
    Sketcher.Constraint("Vertical", 9, 2, 12, 2),
    Sketcher.Constraint("Vertical", 5, 2, 14, 2),
    Sketcher.Constraint("Equal", 8, 10),
    Sketcher.Constraint("Equal", 5, 9),
    Sketcher.Constraint("Equal", 9, 13),
    Sketcher.Constraint("DistanceX", 2, 2, 2, 1, 59.0),
    Sketcher.Constraint("DistanceX", 4, 1, 4, 2, 40.0),
    Sketcher.Constraint("DistanceX", 15, 2, 15, 1, 30.0),
    Sketcher.Constraint("DistanceX", 17, 1, 17, 2, 10.0),
    Sketcher.Constraint("DistanceY", 1, 2, 1, 1, 16.0),
    Sketcher.Constraint("DistanceY", 3, 1, 3, 2, 85.0),
    Sketcher.Constraint("DistanceY", 5, 1, 5, 2, 7.0),
    Sketcher.Constraint("DistanceY", 14, 1, 14, 2, 60.0),
    Sketcher.Constraint("DistanceY", 16, 2, 16, 1, 69.0),
    Sketcher.Constraint("DistanceX", 0, 1, 0, 2, 4.5),
    Sketcher.Constraint("DistanceY", 14, 2, -1, 1, 8.0),
])
pad11 = body.newObject("PartDesign::Pad", "Pad010")
pad11.Profile = sketch15
pad11.Length = 2
pad11.Reversed = True

# Sketch on XZ plane
sketch16 = body.newObject("Sketcher::SketchObject", "Sketch015")
sketch16.AttachmentSupport = (doc.getObject("XZ_Plane"), [""])
sketch16.MapMode = "FlatFace"
sketch16.AttachmentOffset = App.Placement(Vector(0, 0, -10), App.Rotation())
sketch16.addGeometry([
    Part.LineSegment(Vector(3, -70, 0), Vector(3, -6, 0)),
    Part.LineSegment(Vector(3, -6, 0), Vector(5, -6, 0)),
    Part.LineSegment(Vector(5, -6, 0), Vector(5, -70, 0)),
    Part.LineSegment(Vector(5, -70, 0), Vector(3, -70, 0)),
], False)
sketch16.addConstraint([
    Sketcher.Constraint("Coincident", 0, 2, 1, 1),
    Sketcher.Constraint("Coincident", 1, 2, 2, 1),
    Sketcher.Constraint("Coincident", 2, 2, 3, 1),
    Sketcher.Constraint("Coincident", 3, 2, 0, 1),
    Sketcher.Constraint("Vertical", 0),
    Sketcher.Constraint("Horizontal", 1),
    Sketcher.Constraint("Vertical", 2),
    Sketcher.Constraint("Horizontal", 3),
    Sketcher.Constraint("DistanceX", 1, 1, 1, 2, 2.0),
    Sketcher.Constraint("DistanceY", 0, 1, 0, 2, 64.0),
    Sketcher.Constraint("DistanceX", -1, 1, 0, 2, 3.0),
    Sketcher.Constraint("DistanceY", 0, 2, -1, 1, 6.0),
])
pocket5 = body.newObject("PartDesign::Pocket", "Pocket004")
pocket5.Profile = sketch16
pocket5.Length = 49

# Sketch on XZ plane
sketch17 = body.newObject("Sketcher::SketchObject", "Sketch016")
sketch17.AttachmentSupport = (doc.getObject("XZ_Plane"), [""])
sketch17.MapMode = "FlatFace"
sketch17.AttachmentOffset = App.Placement(Vector(0, 0, -50), App.Rotation())
sketch17.addGeometry([
    Part.LineSegment(Vector(3, -70, 0), Vector(3, -6, 0)),
    Part.LineSegment(Vector(3, -6, 0), Vector(5, -6, 0)),
    Part.LineSegment(Vector(5, -6, 0), Vector(5, -70, 0)),
    Part.LineSegment(Vector(5, -70, 0), Vector(3, -70, 0)),
], False)
sketch17.addConstraint([
    Sketcher.Constraint("Coincident", 0, 2, 1, 1),
    Sketcher.Constraint("Coincident", 1, 2, 2, 1),
    Sketcher.Constraint("Coincident", 2, 2, 3, 1),
    Sketcher.Constraint("Coincident", 3, 2, 0, 1),
    Sketcher.Constraint("Vertical", 0),
    Sketcher.Constraint("Horizontal", 1),
    Sketcher.Constraint("Vertical", 2),
    Sketcher.Constraint("Horizontal", 3),
    Sketcher.Constraint("DistanceX", 1, 1, 1, 2, 2.0),
    Sketcher.Constraint("DistanceY", 0, 1, 0, 2, 64.0),
    Sketcher.Constraint("DistanceX", -1, 1, 0, 2, 3.0),
    Sketcher.Constraint("DistanceY", 0, 2, -1, 1, 6.0),
])
pocket6 = body.newObject("PartDesign::Pocket", "Pocket005")
pocket6.Profile = sketch17
pocket6.Length = 42
pocket6.Reversed = True

# Sketch on YZ plane
sketch18 = body.newObject("Sketcher::SketchObject", "Sketch017")
sketch18.AttachmentSupport = (doc.getObject("YZ_Plane"), [""])
sketch18.MapMode = "FlatFace"
sketch18.AttachmentOffset = App.Placement(Vector(0, 0, -2), App.Rotation())
sketch18.addGeometry([
    Part.LineSegment(Vector(50, -68, 0), Vector(40, -68, 0)),
    Part.LineSegment(Vector(40, -68, 0), Vector(40, -8, 0)),
    Part.LineSegment(Vector(40, -8, 0), Vector(50, -8, 0)),
    Part.LineSegment(Vector(50, -8, 0), Vector(50, -68, 0)),
], False)
sketch18.addConstraint([
    Sketcher.Constraint("Coincident", 0, 2, 1, 1),
    Sketcher.Constraint("Coincident", 1, 2, 2, 1),
    Sketcher.Constraint("Coincident", 2, 2, 3, 1),
    Sketcher.Constraint("Coincident", 3, 2, 0, 1),
    Sketcher.Constraint("Horizontal", 0),
    Sketcher.Constraint("Vertical", 1),
    Sketcher.Constraint("Horizontal", 2),
    Sketcher.Constraint("Vertical", 3),
    Sketcher.Constraint("DistanceX", 0, 2, 0, 1, 10.0),
    Sketcher.Constraint("DistanceY", 1, 1, 1, 2, 60.0),
    Sketcher.Constraint("DistanceX", -1, 1, 0, 2, 40.0),
    Sketcher.Constraint("DistanceY", 0, 2, -1, 1, 68.0),
])
pocket7 = body.newObject("PartDesign::Pocket", "Pocket006")
pocket7.Profile = sketch18
pocket7.Length = 10
pocket7.Reversed = True

# Sketch on XZ plane
sketch19 = body.newObject("Sketcher::SketchObject", "Sketch018")
sketch19.AttachmentSupport = (doc.getObject("XZ_Plane"), [""])
sketch19.MapMode = "FlatFace"
sketch19.AttachmentOffset = App.Placement(Vector(0, 0, -59), App.Rotation())
sketch19.addGeometry([
    Part.LineSegment(Vector(8, -85, 0), Vector(8, -69, 0)),
    Part.LineSegment(Vector(8, -69, 0), Vector(40, -69, 0)),
    Part.LineSegment(Vector(40, -69, 0), Vector(40, -85, 0)),
    Part.LineSegment(Vector(40, -85, 0), Vector(8, -85, 0)),
], False)
sketch19.addConstraint([
    Sketcher.Constraint("Coincident", 0, 2, 1, 1),
    Sketcher.Constraint("Coincident", 1, 2, 2, 1),
    Sketcher.Constraint("Coincident", 2, 2, 3, 1),
    Sketcher.Constraint("Coincident", 3, 2, 0, 1),
    Sketcher.Constraint("Vertical", 0),
    Sketcher.Constraint("Horizontal", 1),
    Sketcher.Constraint("Vertical", 2),
    Sketcher.Constraint("Horizontal", 3),
    Sketcher.Constraint("DistanceY", 0, 1, 0, 2, 16.0),
    Sketcher.Constraint("DistanceY", 0, 2, -1, 1, 69.0),
    Sketcher.Constraint("DistanceX", -1, 1, 1, 2, 40.0),
    Sketcher.Constraint("DistanceX", 1, 1, 1, 2, 32.101149),
])
pad12 = body.newObject("PartDesign::Pad", "Pad011")
pad12.Profile = sketch19
pad12.Length = 24
pad12.Reversed = True

# Sketch on XZ plane
sketch20 = body.newObject("Sketcher::SketchObject", "Sketch019")
sketch20.AttachmentSupport = (doc.getObject("XZ_Plane"), [""])
sketch20.MapMode = "FlatFace"
sketch20.AttachmentOffset = App.Placement(Vector(0, 0, -59), App.Rotation())
sketch20.addGeometry([
    Part.LineSegment(Vector(8, -7, 0), Vector(8, 7, 0)),
    Part.LineSegment(Vector(8, 7, 0), Vector(40, 7, 0)),
    Part.LineSegment(Vector(40, 7, 0), Vector(40, -7, 0)),
    Part.LineSegment(Vector(40, -7, 0), Vector(8, -7, 0)),
], False)
sketch20.addConstraint([
    Sketcher.Constraint("Coincident", 0, 2, 1, 1),
    Sketcher.Constraint("Coincident", 1, 2, 2, 1),
    Sketcher.Constraint("Coincident", 2, 2, 3, 1),
    Sketcher.Constraint("Coincident", 3, 2, 0, 1),
    Sketcher.Constraint("Vertical", 0),
    Sketcher.Constraint("Horizontal", 1),
    Sketcher.Constraint("Vertical", 2),
    Sketcher.Constraint("Horizontal", 3),
    Sketcher.Constraint("DistanceY", 0, 1, 0, 2, 14.0),
    Sketcher.Constraint("DistanceY", -1, 1, 0, 2, 7.0),
    Sketcher.Constraint("DistanceX", -1, 1, 1, 2, 40.0),
    Sketcher.Constraint("DistanceX", 1, 1, 1, 2, 32.101149),
])
pad13 = body.newObject("PartDesign::Pad", "Pad012")
pad13.Profile = sketch20
pad13.Length = 4
pad13.Reversed = True

# Sketch on XZ plane
sketch21 = body.newObject("Sketcher::SketchObject", "Sketch020")
sketch21.AttachmentSupport = (doc.getObject("XZ_Plane"), [""])
sketch21.MapMode = "FlatFace"
sketch21.AttachmentOffset = App.Placement(Vector(0, 0, -10), App.Rotation())
sketch21.addGeometry([
    Part.Circle(Vector(13.1, -24.6, 0), Vector(0, 0, 1), 4.2),
    Part.Circle(Vector(13.1, -38.4, 0), Vector(0, 0, 1), 4.2),
    Part.Circle(Vector(26.9, -38.4, 0), Vector(0, 0, 1), 4.2),
    Part.Circle(Vector(26.9, -24.6, 0), Vector(0, 0, 1), 4.2),
], False)
sketch21.addConstraint([
    Sketcher.Constraint("Equal", 0, 1),
    Sketcher.Constraint("Equal", 1, 2),
    Sketcher.Constraint("Equal", 2, 3),
    Sketcher.Constraint("Horizontal", 1, 3, 2, 3),
    Sketcher.Constraint("Horizontal", 0, 3, 3, 3),
    Sketcher.Constraint("Vertical", 0, 3, 1, 3),
    Sketcher.Constraint("Vertical", 2, 3, 3, 3),
    Sketcher.Constraint("Diameter", 0, 8.5),
    Sketcher.Constraint("DistanceX", -1, 1, 0, 3, 13.085203),
    Sketcher.Constraint("DistanceY", 0, 3, -1, 1, 24.585203),
    Sketcher.Constraint("DistanceY", 1, 3, -1, 1, 38.414797),
    Sketcher.Constraint("DistanceX", -1, 1, 2, 3, 26.914797),
])
pocket8 = body.newObject("PartDesign::Pocket", "Pocket007")
pocket8.Profile = sketch21
pocket8.Length = 2.5
pocket8.Reversed = True

doc.recompute()
